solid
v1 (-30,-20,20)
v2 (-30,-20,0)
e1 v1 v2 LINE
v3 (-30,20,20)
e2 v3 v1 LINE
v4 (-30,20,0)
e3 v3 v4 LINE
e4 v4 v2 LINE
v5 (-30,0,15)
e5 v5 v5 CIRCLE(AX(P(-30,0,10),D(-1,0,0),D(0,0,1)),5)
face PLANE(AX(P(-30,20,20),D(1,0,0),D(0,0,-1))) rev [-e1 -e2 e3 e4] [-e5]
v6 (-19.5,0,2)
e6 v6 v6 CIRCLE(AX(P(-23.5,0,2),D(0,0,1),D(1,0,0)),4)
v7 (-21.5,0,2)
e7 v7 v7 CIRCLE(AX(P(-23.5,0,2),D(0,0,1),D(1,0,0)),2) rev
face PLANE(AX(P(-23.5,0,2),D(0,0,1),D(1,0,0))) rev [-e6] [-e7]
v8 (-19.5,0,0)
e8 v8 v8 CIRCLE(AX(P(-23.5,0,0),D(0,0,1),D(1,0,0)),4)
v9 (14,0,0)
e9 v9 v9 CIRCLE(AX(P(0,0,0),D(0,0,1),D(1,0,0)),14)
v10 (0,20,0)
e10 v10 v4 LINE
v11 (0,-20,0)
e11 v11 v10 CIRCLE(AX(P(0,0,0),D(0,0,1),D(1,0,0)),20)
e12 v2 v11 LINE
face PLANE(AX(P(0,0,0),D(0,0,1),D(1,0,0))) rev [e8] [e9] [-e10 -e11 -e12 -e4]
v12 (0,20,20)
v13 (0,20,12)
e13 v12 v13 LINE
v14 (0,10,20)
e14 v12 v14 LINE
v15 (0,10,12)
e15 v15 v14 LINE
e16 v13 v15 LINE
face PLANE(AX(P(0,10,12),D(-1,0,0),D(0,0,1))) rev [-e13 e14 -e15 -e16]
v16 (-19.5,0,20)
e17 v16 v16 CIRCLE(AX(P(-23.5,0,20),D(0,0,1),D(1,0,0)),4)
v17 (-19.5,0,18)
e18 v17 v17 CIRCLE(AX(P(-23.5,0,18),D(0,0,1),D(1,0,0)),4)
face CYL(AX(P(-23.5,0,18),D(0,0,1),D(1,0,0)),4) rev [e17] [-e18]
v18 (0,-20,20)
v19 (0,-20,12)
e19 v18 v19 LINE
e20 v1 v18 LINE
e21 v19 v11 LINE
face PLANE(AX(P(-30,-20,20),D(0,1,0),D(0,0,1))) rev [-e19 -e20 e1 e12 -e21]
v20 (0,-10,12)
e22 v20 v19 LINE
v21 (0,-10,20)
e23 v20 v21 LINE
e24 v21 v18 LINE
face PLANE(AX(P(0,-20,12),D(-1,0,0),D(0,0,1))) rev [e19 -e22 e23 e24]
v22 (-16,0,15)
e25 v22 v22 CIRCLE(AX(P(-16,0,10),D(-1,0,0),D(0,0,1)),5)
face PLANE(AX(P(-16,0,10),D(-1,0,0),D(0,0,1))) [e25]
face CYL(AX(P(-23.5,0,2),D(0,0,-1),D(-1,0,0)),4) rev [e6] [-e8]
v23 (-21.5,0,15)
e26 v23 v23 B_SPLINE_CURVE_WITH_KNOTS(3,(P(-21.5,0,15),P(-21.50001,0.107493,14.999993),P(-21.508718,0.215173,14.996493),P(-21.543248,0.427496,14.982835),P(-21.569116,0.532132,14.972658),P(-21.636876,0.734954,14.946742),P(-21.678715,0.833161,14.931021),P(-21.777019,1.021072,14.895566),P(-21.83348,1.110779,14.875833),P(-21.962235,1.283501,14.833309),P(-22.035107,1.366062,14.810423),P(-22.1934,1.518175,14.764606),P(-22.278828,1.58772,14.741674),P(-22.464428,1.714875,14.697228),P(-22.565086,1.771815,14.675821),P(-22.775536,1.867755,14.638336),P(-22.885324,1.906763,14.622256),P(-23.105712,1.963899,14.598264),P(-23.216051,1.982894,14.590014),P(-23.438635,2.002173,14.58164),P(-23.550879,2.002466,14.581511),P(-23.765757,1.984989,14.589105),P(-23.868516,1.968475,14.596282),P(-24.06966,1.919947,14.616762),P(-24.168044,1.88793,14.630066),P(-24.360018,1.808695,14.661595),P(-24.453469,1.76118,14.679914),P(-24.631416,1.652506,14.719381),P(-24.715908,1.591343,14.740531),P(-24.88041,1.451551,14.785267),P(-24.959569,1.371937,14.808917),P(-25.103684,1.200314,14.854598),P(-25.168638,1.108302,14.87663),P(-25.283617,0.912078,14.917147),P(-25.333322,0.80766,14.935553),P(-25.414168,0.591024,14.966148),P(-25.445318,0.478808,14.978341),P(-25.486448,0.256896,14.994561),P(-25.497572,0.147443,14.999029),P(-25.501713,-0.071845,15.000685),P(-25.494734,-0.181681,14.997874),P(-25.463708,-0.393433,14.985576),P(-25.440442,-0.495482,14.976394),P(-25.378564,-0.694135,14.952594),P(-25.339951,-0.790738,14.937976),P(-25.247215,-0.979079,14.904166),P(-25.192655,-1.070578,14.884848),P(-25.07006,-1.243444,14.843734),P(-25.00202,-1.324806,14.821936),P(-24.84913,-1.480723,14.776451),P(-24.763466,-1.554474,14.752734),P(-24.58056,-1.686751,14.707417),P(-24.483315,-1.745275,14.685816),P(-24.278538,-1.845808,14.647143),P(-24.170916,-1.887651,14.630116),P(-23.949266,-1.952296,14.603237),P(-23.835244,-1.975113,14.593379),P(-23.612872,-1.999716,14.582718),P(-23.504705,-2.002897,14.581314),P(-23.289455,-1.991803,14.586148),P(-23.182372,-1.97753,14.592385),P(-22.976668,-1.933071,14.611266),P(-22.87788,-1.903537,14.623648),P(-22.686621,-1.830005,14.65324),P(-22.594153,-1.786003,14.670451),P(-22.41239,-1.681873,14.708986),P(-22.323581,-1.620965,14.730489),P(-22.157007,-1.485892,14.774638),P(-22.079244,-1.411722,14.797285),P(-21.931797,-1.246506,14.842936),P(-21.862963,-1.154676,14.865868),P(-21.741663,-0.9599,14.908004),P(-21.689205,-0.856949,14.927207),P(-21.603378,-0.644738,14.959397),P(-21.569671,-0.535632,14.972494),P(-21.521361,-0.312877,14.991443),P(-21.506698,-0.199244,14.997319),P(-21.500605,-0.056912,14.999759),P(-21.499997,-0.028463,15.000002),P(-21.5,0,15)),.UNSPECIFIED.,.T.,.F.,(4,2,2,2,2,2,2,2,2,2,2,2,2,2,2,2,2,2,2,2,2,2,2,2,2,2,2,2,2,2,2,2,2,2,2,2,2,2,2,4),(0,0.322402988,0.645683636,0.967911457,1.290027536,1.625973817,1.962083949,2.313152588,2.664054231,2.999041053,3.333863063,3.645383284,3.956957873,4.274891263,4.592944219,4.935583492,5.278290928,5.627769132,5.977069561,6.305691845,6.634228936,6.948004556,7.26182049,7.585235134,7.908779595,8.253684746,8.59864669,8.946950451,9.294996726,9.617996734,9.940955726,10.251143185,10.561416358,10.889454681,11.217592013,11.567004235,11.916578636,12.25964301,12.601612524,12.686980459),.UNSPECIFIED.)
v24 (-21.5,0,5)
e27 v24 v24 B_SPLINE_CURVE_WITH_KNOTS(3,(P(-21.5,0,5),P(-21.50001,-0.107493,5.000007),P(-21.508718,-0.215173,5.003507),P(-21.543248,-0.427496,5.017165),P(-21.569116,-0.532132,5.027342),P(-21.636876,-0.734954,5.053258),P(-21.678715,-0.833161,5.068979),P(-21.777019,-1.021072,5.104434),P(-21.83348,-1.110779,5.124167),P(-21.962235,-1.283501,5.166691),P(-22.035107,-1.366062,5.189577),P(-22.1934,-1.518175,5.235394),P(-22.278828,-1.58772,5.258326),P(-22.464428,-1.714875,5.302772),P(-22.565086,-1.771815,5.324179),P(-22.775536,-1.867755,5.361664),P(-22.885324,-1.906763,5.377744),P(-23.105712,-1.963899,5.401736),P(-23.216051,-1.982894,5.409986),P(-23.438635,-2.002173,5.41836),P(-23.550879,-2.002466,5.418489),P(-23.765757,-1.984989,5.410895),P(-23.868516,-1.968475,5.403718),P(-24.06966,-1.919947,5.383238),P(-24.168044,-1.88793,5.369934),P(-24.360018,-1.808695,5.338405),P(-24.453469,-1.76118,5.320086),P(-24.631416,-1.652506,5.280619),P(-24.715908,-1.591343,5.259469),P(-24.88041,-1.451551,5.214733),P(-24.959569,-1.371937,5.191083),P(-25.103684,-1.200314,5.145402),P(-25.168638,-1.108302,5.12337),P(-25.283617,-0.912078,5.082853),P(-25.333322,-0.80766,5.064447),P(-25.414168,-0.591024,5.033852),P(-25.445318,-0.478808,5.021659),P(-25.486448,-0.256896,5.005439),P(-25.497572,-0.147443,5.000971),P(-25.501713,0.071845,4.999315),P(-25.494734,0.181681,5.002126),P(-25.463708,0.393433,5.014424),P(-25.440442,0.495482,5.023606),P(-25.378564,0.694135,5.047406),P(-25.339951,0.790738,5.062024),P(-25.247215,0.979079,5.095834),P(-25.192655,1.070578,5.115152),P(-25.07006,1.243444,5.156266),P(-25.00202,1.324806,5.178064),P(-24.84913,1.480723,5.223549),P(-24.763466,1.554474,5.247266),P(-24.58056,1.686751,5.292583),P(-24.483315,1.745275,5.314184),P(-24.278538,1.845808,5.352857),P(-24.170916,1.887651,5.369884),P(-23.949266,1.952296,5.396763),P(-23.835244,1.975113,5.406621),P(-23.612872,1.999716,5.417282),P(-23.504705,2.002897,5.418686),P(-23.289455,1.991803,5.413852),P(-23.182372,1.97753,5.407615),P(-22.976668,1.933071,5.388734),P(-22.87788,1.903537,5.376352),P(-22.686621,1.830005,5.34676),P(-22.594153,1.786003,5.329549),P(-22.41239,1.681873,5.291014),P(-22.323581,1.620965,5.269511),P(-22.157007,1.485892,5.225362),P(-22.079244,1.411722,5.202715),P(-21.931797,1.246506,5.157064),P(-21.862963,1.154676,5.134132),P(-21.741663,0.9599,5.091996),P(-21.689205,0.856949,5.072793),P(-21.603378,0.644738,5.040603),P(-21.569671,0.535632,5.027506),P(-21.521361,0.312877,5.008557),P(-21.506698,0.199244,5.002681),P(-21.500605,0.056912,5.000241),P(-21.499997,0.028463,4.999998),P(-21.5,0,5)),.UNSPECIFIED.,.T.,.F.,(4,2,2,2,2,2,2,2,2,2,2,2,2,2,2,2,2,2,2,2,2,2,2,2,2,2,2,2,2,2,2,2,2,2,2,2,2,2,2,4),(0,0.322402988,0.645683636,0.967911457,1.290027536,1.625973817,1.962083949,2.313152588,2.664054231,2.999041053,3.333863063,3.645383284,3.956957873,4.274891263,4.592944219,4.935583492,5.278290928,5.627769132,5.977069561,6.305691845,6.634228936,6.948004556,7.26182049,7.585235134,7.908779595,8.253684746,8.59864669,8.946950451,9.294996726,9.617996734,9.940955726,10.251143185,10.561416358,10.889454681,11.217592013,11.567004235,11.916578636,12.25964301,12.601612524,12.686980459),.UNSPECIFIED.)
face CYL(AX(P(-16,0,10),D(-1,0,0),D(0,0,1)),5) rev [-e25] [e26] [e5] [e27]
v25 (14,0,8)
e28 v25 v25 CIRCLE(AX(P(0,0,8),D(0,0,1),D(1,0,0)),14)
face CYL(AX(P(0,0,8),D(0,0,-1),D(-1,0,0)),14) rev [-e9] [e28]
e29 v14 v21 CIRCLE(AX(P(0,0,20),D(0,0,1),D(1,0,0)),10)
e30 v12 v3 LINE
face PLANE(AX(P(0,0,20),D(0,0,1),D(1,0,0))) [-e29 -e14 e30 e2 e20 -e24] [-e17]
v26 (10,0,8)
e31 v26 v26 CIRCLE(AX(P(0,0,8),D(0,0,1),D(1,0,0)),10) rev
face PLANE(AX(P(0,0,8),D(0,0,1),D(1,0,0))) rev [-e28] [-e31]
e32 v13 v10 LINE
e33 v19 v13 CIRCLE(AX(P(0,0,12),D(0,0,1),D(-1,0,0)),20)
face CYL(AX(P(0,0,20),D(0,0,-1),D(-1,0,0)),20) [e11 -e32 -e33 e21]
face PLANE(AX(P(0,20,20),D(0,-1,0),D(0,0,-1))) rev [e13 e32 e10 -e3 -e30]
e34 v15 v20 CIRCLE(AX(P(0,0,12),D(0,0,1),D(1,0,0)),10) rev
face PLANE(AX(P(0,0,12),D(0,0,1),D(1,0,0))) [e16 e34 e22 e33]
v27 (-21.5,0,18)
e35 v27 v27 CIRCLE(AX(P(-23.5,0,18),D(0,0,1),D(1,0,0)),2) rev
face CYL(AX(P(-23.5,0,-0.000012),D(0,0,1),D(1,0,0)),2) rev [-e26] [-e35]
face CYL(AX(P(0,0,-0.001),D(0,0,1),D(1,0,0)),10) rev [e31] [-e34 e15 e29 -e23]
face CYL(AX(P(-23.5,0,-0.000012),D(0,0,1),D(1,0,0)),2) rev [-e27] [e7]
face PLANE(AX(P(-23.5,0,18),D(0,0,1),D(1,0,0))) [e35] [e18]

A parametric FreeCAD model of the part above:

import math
import FreeCAD as App
import Part
import Sketcher

doc = App.newDocument("Part")
body = doc.addObject("PartDesign::Body", "Body")

# Sketch on XY plane
sketch1 = doc.addObject("Sketcher::SketchObject", "Sketch")
body.addObject(sketch1)
sketch1.AttachmentSupport = (doc.XY_Plane, [""])
sketch1.MapMode = "FlatFace"
sketch1.addGeometry([
    Part.LineSegment(App.Vector(0, 20, 0), App.Vector(-30, 20, 0)),
    Part.LineSegment(App.Vector(-30, 20, 0), App.Vector(-30, -20, 0)),
    Part.LineSegment(App.Vector(-30, -20, 0), App.Vector(0, -20, 0)),
    Part.ArcOfCircle(Part.Circle(App.Vector(0, 0, 0), App.Vector(0, 0, 1), 20), math.radians(-90), math.radians(90)),
], False)
sketch1.addConstraint([
    Sketcher.Constraint("Coincident", 0, 2, 1, 1),
    Sketcher.Constraint("Coincident", 1, 2, 2, 1),
    Sketcher.Constraint("Tangent", 2, 2, 3, 1),
    Sketcher.Constraint("Tangent", 3, 2, 0, 1),
    Sketcher.Constraint("Horizontal", 0),
    Sketcher.Constraint("Vertical", 1),
    Sketcher.Constraint("Horizontal", 2),
    Sketcher.Constraint("Coincident", 3, 3, -1, 1),
    Sketcher.Constraint("Radius", 3, 20.0),
    Sketcher.Constraint("DistanceX", 0, 2, 0, 1, 30.0),
])
pad1 = doc.addObject("PartDesign::Pad", "Pad")
body.addObject(pad1)
pad1.Profile = sketch1
pad1.Length = 20

# Sketch on XY plane
sketch2 = doc.addObject("Sketcher::SketchObject", "Sketch001")
body.addObject(sketch2)
sketch2.AttachmentSupport = (doc.XY_Plane, [""])
sketch2.MapMode = "FlatFace"
sketch2.addGeometry(Part.Circle(App.Vector(0, 0, 0), App.Vector(0, 0, 1), 14), False)
sketch2.addConstraint([
    Sketcher.Constraint("Coincident", 0, 3, -1, 1),
    Sketcher.Constraint("Diameter", 0, 28.0),
])
pocket1 = doc.addObject("PartDesign::Pocket", "Pocket")
body.addObject(pocket1)
pocket1.Profile = sketch2
pocket1.Length = 8
pocket1.Reversed = True

# Sketch on YZ plane
sketch3 = doc.addObject("Sketcher::SketchObject", "Sketch002")
body.addObject(sketch3)
sketch3.AttachmentSupport = (doc.YZ_Plane, [""])
sketch3.MapMode = "FlatFace"
sketch3.AttachmentOffset = App.Placement(App.Vector(0, 0, -30), App.Rotation())
sketch3.addGeometry(Part.Circle(App.Vector(0, 10, 0), App.Vector(0, 0, 1), 5), False)
sketch3.addConstraint([
    Sketcher.Constraint("PointOnObject", 0, 3, -2),
    Sketcher.Constraint("Diameter", 0, 10.0),
    Sketcher.Constraint("DistanceY", -1, 1, 0, 3, 10.0),
])
pocket2 = doc.addObject("PartDesign::Pocket", "Pocket001")
body.addObject(pocket2)
pocket2.Profile = sketch3
pocket2.Length = 14
pocket2.Reversed = True

# Sketch on XY plane
sketch4 = doc.addObject("Sketcher::SketchObject", "Sketch003")
body.addObject(sketch4)
sketch4.AttachmentSupport = (doc.XY_Plane, [""])
sketch4.MapMode = "FlatFace"
sketch4.addGeometry(Part.Circle(App.Vector(-23.5, 0, 0), App.Vector(0, 0, 1), 2), False)
sketch4.addConstraint([
    Sketcher.Constraint("PointOnObject", 0, 3, -1),
    Sketcher.Constraint("Diameter", 0, 4.0),
    Sketcher.Constraint("DistanceX", 0, 3, -1, 1, 23.5),
])
pocket3 = doc.addObject("PartDesign::Pocket", "Pocket002")
body.addObject(pocket3)
pocket3.Profile = sketch4
pocket3.Type = "ThroughAll"
pocket3.Midplane = True

# Sketch on XY plane
sketch5 = doc.addObject("Sketcher::SketchObject", "Sketch004")
body.addObject(sketch5)
sketch5.AttachmentSupport = (doc.XY_Plane, [""])
sketch5.MapMode = "FlatFace"
sketch5.addGeometry(Part.Circle(App.Vector(-23.5, 0, 0), App.Vector(0, 0, 1), 4), False)
sketch5.addConstraint([
    Sketcher.Constraint("PointOnObject", 0, 3, -1),
    Sketcher.Constraint("Diameter", 0, 8.0),
    Sketcher.Constraint("DistanceX", 0, 3, -1, 1, 23.5),
])
pocket4 = doc.addObject("PartDesign::Pocket", "Pocket003")
body.addObject(pocket4)
pocket4.Profile = sketch5
pocket4.Length = 2
pocket4.Reversed = True

# Sketch on XY plane
sketch6 = doc.addObject("Sketcher::SketchObject", "Sketch005")
body.addObject(sketch6)
sketch6.AttachmentSupport = (doc.XY_Plane, [""])
sketch6.MapMode = "FlatFace"
sketch6.AttachmentOffset = App.Placement(App.Vector(0, 0, 18), App.Rotation())
sketch6.addGeometry(Part.Circle(App.Vector(-23.5, 0, 0), App.Vector(0, 0, 1), 4), False)
sketch6.addConstraint([
    Sketcher.Constraint("PointOnObject", 0, 3, -1),
    Sketcher.Constraint("Diameter", 0, 8.0),
    Sketcher.Constraint("DistanceX", 0, 3, -1, 1, 23.5),
])
pocket5 = doc.addObject("PartDesign::Pocket", "Pocket004")
body.addObject(pocket5)
pocket5.Profile = sketch6
pocket5.Length = 2
pocket5.Reversed = True

# Sketch on XY plane
sketch7 = doc.addObject("Sketcher::SketchObject", "Sketch006")
body.addObject(sketch7)
sketch7.AttachmentSupport = (doc.XY_Plane, [""])
sketch7.MapMode = "FlatFace"
sketch7.AttachmentOffset = App.Placement(App.Vector(0, 0, 20), App.Rotation())
sketch7.addGeometry(Part.Circle(App.Vector(0, 0, 0), App.Vector(0, 0, 1), 10), False)
sketch7.addConstraint([
    Sketcher.Constraint("Coincident", 0, 3, -1, 1),
    Sketcher.Constraint("Diameter", 0, 20.0),
])
pocket6 = doc.addObject("PartDesign::Pocket", "Pocket005")
body.addObject(pocket6)
pocket6.Profile = sketch7
pocket6.Type = "UpToFirst"

# Sketch on XY plane
sketch8 = doc.addObject("Sketcher::SketchObject", "Sketch007")
body.addObject(sketch8)
sketch8.AttachmentSupport = (doc.XY_Plane, [""])
sketch8.MapMode = "FlatFace"
sketch8.AttachmentOffset = App.Placement(App.Vector(0, 0, 20), App.Rotation())
sketch8.addGeometry([
    Part.LineSegment(App.Vector(0, 20, 0), App.Vector(0, 10, 0)),
    Part.ArcOfCircle(Part.Circle(App.Vector(0, 0, 0), App.Vector(0, 0, 1), 10), math.radians(90), math.radians(270)),
    Part.LineSegment(App.Vector(0, -10, 0), App.Vector(0, -20, 0)),
    Part.ArcOfCircle(Part.Circle(App.Vector(0, 0, 0), App.Vector(0, 0, 1), 20), math.radians(-90), math.radians(90)),
], False)
sketch8.addConstraint([
    Sketcher.Constraint("Coincident", 0, 2, 1, 1),
    Sketcher.Constraint("Coincident", 1, 2, 2, 1),
    Sketcher.Constraint("Coincident", 2, 2, 3, 1),
    Sketcher.Constraint("Coincident", 3, 2, 0, 1),
    Sketcher.Constraint("Vertical", 0),
    Sketcher.Constraint("Vertical", 2),
    Sketcher.Constraint("Coincident", 1, 3, -1, 1),
    Sketcher.Constraint("Coincident", 3, 3, -1, 1),
    Sketcher.Constraint("PointOnObject", 0, 2, -2),
    Sketcher.Constraint("PointOnObject", 1, 2, -2),
    Sketcher.Constraint("Radius", 1, 10.0),
    Sketcher.Constraint("Radius", 3, 20.0),
])
pocket7 = doc.addObject("PartDesign::Pocket", "Pocket006")
body.addObject(pocket7)
pocket7.Profile = sketch8
pocket7.Length = 8

doc.recompute()
